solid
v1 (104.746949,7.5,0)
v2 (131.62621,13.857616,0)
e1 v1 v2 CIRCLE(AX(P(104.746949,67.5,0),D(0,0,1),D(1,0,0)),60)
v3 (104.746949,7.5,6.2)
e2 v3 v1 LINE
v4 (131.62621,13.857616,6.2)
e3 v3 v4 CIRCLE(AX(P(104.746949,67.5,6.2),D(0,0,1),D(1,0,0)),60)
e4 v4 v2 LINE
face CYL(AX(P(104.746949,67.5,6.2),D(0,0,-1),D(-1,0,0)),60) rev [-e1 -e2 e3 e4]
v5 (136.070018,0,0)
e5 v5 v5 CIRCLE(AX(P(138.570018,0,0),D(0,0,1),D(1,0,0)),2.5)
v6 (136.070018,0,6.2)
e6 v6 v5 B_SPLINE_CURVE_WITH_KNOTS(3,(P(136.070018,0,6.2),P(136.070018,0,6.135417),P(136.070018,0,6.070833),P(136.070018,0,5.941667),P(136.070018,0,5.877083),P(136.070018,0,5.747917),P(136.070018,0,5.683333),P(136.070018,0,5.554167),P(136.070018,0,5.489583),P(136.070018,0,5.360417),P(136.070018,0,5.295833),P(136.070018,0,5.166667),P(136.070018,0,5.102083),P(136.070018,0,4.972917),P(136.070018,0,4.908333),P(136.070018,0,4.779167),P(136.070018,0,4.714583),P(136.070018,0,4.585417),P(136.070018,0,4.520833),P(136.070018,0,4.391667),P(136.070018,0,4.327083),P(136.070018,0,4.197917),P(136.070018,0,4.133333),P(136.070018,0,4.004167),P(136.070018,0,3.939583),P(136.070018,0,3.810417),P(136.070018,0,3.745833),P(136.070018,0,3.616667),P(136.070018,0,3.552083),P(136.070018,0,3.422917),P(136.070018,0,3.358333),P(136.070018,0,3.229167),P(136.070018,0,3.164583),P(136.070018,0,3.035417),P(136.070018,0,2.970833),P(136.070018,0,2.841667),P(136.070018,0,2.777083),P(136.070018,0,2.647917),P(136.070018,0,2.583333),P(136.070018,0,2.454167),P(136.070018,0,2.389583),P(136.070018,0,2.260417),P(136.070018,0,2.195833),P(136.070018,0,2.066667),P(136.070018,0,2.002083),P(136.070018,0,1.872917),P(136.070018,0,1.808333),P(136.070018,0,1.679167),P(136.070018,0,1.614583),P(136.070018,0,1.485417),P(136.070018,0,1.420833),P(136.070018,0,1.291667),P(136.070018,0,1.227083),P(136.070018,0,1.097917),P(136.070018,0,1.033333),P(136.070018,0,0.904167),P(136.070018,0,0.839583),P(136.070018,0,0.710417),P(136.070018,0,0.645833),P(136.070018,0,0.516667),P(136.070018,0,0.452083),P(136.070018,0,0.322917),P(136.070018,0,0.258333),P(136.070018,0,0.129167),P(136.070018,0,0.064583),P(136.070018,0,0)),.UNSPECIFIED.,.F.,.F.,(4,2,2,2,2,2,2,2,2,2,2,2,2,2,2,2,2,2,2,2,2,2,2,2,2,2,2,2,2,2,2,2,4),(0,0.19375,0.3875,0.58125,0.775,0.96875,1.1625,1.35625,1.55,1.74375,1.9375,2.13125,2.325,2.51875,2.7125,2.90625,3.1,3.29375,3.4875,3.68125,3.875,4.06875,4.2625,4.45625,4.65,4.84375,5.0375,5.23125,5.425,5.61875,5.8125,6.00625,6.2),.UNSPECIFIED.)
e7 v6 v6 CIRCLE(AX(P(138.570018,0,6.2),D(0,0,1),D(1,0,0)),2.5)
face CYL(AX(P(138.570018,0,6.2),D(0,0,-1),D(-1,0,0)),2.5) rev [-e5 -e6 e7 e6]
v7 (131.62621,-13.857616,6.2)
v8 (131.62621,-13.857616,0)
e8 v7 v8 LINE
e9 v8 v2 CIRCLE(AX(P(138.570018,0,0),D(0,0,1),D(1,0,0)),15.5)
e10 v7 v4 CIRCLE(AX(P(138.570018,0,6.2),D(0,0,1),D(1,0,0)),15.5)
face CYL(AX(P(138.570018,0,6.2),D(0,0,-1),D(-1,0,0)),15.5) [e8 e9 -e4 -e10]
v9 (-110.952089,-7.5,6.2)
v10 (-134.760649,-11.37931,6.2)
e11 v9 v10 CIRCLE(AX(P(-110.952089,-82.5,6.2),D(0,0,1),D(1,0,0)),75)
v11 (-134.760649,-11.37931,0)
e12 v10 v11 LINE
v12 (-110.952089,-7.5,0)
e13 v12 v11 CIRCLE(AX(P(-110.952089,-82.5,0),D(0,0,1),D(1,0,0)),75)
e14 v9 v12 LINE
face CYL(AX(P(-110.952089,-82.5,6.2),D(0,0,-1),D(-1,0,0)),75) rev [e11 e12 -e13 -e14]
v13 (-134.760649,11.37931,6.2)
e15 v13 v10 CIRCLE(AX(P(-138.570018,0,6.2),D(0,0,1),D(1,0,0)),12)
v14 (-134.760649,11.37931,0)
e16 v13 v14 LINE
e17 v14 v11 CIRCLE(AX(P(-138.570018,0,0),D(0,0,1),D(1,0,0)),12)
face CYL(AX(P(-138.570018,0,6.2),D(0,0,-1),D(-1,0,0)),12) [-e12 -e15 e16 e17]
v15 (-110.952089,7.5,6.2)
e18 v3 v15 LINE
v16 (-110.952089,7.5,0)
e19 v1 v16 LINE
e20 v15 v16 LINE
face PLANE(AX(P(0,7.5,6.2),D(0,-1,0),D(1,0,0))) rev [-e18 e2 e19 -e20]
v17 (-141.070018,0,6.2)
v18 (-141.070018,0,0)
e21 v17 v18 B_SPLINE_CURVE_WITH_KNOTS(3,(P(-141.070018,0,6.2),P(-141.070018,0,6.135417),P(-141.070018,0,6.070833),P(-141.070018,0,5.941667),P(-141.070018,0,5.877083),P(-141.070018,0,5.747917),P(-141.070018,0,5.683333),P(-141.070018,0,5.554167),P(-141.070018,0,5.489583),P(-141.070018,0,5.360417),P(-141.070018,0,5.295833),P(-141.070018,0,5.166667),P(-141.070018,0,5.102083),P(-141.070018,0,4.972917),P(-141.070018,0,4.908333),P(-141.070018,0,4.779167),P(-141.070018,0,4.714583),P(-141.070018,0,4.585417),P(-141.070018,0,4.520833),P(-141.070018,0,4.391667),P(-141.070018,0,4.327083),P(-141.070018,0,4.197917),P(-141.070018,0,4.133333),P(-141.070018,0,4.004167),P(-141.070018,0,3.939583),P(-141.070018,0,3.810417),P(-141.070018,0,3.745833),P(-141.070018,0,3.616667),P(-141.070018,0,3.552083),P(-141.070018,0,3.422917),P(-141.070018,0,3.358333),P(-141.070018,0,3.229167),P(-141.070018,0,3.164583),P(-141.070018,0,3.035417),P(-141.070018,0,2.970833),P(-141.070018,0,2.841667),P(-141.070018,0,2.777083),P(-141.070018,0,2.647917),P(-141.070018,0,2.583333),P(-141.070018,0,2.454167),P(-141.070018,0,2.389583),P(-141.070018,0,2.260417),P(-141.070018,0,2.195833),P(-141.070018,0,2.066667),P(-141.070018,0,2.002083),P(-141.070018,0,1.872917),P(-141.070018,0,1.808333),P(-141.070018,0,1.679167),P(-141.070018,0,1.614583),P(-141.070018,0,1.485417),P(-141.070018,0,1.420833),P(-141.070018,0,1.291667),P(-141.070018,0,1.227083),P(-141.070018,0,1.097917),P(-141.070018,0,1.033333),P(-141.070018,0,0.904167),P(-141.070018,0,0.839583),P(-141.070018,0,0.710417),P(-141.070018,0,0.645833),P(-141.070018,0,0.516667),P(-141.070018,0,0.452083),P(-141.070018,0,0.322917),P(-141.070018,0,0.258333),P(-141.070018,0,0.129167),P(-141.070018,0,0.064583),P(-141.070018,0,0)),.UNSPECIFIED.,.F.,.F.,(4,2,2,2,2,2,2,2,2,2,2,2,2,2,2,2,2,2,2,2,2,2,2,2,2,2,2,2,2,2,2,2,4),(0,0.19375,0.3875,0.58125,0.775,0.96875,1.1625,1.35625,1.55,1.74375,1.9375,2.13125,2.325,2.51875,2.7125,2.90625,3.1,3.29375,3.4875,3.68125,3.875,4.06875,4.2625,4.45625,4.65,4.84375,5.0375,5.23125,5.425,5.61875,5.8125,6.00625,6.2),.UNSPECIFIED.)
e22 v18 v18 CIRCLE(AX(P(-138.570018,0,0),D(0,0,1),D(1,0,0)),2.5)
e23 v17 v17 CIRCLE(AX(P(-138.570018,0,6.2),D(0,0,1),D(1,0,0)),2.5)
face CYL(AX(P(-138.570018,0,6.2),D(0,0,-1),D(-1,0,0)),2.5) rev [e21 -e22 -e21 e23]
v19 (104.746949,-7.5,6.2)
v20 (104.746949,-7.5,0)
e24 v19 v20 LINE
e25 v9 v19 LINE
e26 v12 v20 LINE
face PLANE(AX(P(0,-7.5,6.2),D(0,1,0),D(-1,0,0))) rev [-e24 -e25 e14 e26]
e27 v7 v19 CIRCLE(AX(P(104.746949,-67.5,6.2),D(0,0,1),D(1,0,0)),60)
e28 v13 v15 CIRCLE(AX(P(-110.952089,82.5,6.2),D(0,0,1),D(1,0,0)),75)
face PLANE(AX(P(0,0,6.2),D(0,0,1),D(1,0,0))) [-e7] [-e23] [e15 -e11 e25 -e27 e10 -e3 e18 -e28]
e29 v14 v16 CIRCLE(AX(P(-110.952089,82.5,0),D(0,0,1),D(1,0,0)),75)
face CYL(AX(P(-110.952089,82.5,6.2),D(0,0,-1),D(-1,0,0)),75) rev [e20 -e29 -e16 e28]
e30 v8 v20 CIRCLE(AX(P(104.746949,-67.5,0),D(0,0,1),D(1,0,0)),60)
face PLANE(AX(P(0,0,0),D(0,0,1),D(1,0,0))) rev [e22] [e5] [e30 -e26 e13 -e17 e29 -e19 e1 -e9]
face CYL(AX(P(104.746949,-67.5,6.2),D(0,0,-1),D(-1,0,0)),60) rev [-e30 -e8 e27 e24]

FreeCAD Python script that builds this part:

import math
import FreeCAD as App
import Part
import Sketcher
Q = App.Units.Quantity

doc = App.newDocument("Part")
params = doc.addObject("Spreadsheet::Sheet", "Params")
for row, (alias, value) in enumerate([
    ("sketch1_diameter", "5 mm"),
    ("sketch1_radius", "75 mm"),
    ("sketch1_radius2", "12 mm"),
    ("sketch1_radius3", "60 mm"),
    ("sketch1_radius4", "15.5 mm"),
    ("pad1_length", "6.2 mm"),
], start=1):
    params.set(f"A{row}", alias)
    params.set(f"B{row}", "=" + value)
    params.setAlias(f"B{row}", alias)

body = doc.addObject("PartDesign::Body", "Body")

# Sketch on XY plane
sketch1 = doc.addObject("Sketcher::SketchObject", "Sketch")
body.addObject(sketch1)
sketch1.AttachmentSupport = (doc.XY_Plane, [""])
sketch1.MapMode = "FlatFace"
sketch1.addGeometry(Part.LineSegment(App.Vector(104.7, 7.5, 0), App.Vector(-111, 7.5, 0)), False)
sketch1.addGeometry(Part.ArcOfCircle(Part.Circle(App.Vector(-111, 82.5, 0), App.Vector(0, 0, 1), 75), math.radians(-108.51), math.radians(-90)), False)
sketch1.addGeometry(Part.ArcOfCircle(Part.Circle(App.Vector(-138.6, 0, 0), App.Vector(0, 0, 1), 12), math.radians(71), math.radians(289)), False)
sketch1.addGeometry(Part.ArcOfCircle(Part.Circle(App.Vector(-111, -82.5, 0), App.Vector(0, 0, 1), 75), math.radians(90), math.radians(108.51)), False)
sketch1.addGeometry(Part.LineSegment(App.Vector(-111, -7.5, 0), App.Vector(104.7, -7.5, 0)), False)
sketch1.addGeometry(Part.ArcOfCircle(Part.Circle(App.Vector(104.7, -67.5, 0), App.Vector(0, 0, 1), 60), math.radians(63), math.radians(90)), False)
sketch1.addGeometry(Part.ArcOfCircle(Part.Circle(App.Vector(138.6, 0, 0), App.Vector(0, 0, 1), 15.5), math.radians(-117), math.radians(117)), False)
sketch1.addGeometry(Part.ArcOfCircle(Part.Circle(App.Vector(104.7, 67.5, 0), App.Vector(0, 0, 1), 60), math.radians(-90), math.radians(-63)), False)
sketch1.addGeometry(Part.Circle(App.Vector(-138.6, 0, 0), App.Vector(0, 0, 1), 2.5), False)
sketch1.addGeometry(Part.Circle(App.Vector(138.6, 0, 0), App.Vector(0, 0, 1), 2.5), False)
sketch1.addConstraint(Sketcher.Constraint("Tangent", 0, 2, 1, 2))
sketch1.addConstraint(Sketcher.Constraint("Tangent", 1, 1, 2, 1))
sketch1.addConstraint(Sketcher.Constraint("Tangent", 2, 2, 3, 2))
sketch1.addConstraint(Sketcher.Constraint("Tangent", 3, 1, 4, 1))
sketch1.addConstraint(Sketcher.Constraint("Tangent", 4, 2, 5, 2))
sketch1.addConstraint(Sketcher.Constraint("Tangent", 5, 1, 6, 1))
sketch1.addConstraint(Sketcher.Constraint("Tangent", 6, 2, 7, 2))
sketch1.addConstraint(Sketcher.Constraint("Tangent", 7, 1, 0, 1))
sketch1.addConstraint(Sketcher.Constraint("Horizontal", 0))
sketch1.addConstraint(Sketcher.Constraint("Horizontal", 4))
sketch1.addConstraint(Sketcher.Constraint("Coincident", 8, 3, 2, 3))
sketch1.addConstraint(Sketcher.Constraint("Coincident", 9, 3, 6, 3))
sketch1.addConstraint(Sketcher.Constraint("Equal", 1, 3))
sketch1.addConstraint(Sketcher.Constraint("Equal", 5, 7))
sketch1.addConstraint(Sketcher.Constraint("Equal", 8, 9))
sketch1.addConstraint(Sketcher.Constraint("Symmetric", 2, 3, 6, 3, -1, 1))
sketch1.addConstraint(Sketcher.Constraint("Symmetric", 1, 3, 3, 3, -1))
sketch1.addConstraint(Sketcher.Constraint("Diameter", 8, Q("5 mm")))
sketch1.addConstraint(Sketcher.Constraint("Radius", 1, Q("75 mm")))
sketch1.addConstraint(Sketcher.Constraint("Radius", 2, Q("12 mm")))
sketch1.addConstraint(Sketcher.Constraint("Radius", 5, Q("60 mm")))
sketch1.addConstraint(Sketcher.Constraint("Radius", 6, Q("15.5 mm")))
sketch1.addConstraint(Sketcher.Constraint("DistanceY", 3, 3, 1, 3, Q("165 mm")))
sketch1.addConstraint(Sketcher.Constraint("DistanceX", 0, 2, 0, 1, Q("215.699039 mm")))
sketch1.setExpression("Constraints[17]", "Params.sketch1_diameter")
sketch1.setExpression("Constraints[18]", "Params.sketch1_radius")
sketch1.setExpression("Constraints[19]", "Params.sketch1_radius2")
sketch1.setExpression("Constraints[20]", "Params.sketch1_radius3")
sketch1.setExpression("Constraints[21]", "Params.sketch1_radius4")
pad1 = doc.addObject("PartDesign::Pad", "Pad")
body.addObject(pad1)
pad1.Profile = sketch1
pad1.setExpression("Length", "Params.pad1_length")

doc.recompute()
